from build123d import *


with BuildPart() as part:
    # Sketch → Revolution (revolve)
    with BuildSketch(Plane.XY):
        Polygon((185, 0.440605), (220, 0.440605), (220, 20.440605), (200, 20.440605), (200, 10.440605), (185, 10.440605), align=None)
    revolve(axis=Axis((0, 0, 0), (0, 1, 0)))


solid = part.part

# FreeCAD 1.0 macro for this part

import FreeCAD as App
import Part
import Sketcher


def add_polygon(sketch, points):
    """Adds a closed chain of lines whose ends are joined by coincident constraints."""
    first, n = sketch.GeometryCount, len(points)
    for a, b in zip(points, points[1:] + points[:1]):
        sketch.addGeometry(Part.LineSegment(App.Vector(*a, 0), App.Vector(*b, 0)), False)
    for i in range(n):
        sketch.addConstraint(Sketcher.Constraint("Coincident", first + i, 2, first + (i + 1) % n, 1))

doc = App.newDocument("Part")
body = doc.addObject("PartDesign::Body", "Body")

# Sketch on XY plane
sketch1 = body.newObject("Sketcher::SketchObject", "Sketch")
sketch1.AttachmentSupport = (doc.getObject("XY_Plane"), [""])
sketch1.MapMode = "FlatFace"
add_polygon(sketch1, [(185, 0.440605), (220, 0.440605), (220, 20.440605), (200, 20.440605), (200, 10.440605), (185, 10.440605)])  # lines 0-5
sketch1.addConstraint(Sketcher.Constraint("Horizontal", 0))
sketch1.addConstraint(Sketcher.Constraint("Vertical", 1))
sketch1.addConstraint(Sketcher.Constraint("Horizontal", 2))
sketch1.addConstraint(Sketcher.Constraint("Vertical", 3))
sketch1.addConstraint(Sketcher.Constraint("Horizontal", 4))
sketch1.addConstraint(Sketcher.Constraint("Vertical", 5))
sketch1.addConstraint(Sketcher.Constraint("Equal", 2, 1))
sketch1.addConstraint(Sketcher.Constraint("Equal", 3, 5))
sketch1.addConstraint(Sketcher.Constraint("DistanceX", 0, 1, 0, 2, 35.0))
sketch1.addConstraint(Sketcher.Constraint("DistanceX", 2, 2, 2, 1, 20.0))
sketch1.addConstraint(Sketcher.Constraint("DistanceX", -1, 1, 0, 2, 220.0))
sketch1.addConstraint(Sketcher.Constraint("DistanceY", -1, 1, 0, 2, 0.440605))
revolution = body.newObject("PartDesign::Revolution", "Revolution")
revolution.Profile = sketch1
revolution.ReferenceAxis = (sketch1, ["V_Axis"])
revolution.Angle = 360

doc.recompute()
